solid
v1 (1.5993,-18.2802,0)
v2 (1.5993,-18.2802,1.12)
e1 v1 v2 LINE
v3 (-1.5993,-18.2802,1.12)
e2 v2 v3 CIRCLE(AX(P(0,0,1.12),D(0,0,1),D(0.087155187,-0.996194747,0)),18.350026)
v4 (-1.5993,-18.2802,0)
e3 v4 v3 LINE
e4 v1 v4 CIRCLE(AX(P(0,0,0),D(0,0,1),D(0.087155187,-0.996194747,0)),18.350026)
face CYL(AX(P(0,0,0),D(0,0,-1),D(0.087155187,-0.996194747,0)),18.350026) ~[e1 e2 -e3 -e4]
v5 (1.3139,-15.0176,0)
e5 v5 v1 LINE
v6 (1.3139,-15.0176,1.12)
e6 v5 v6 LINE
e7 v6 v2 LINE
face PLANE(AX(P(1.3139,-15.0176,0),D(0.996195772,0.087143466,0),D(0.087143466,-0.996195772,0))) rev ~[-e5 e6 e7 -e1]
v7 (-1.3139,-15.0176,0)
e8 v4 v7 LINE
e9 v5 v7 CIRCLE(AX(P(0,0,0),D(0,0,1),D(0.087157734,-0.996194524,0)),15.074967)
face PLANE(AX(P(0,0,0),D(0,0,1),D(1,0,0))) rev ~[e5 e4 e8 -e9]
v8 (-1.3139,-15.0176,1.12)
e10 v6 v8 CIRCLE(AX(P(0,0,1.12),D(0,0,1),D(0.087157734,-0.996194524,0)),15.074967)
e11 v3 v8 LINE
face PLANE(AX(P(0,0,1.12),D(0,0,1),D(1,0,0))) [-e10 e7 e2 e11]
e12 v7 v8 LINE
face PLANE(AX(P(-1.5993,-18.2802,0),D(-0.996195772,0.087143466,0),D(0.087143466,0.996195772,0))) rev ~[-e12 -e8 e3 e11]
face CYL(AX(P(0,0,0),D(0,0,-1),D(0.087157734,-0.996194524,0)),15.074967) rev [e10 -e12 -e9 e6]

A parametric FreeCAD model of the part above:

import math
import FreeCAD as App
import Part
import Sketcher
Q = App.Units.Quantity

doc = App.newDocument("Part")
params = doc.addObject("Spreadsheet::Sheet", "Params")
for row, (alias, value) in enumerate([
    ("sketch1_radius", "18.35 mm"),
    ("pad1_length", "1.12 mm"),
], start=1):
    params.set(f"A{row}", alias)
    params.set(f"B{row}", "=" + value)
    params.setAlias(f"B{row}", alias)

body = doc.addObject("PartDesign::Body", "Body")

# Sketch on XY plane
sketch1 = doc.addObject("Sketcher::SketchObject", "Sketch")
body.addObject(sketch1)
sketch1.AttachmentSupport = (doc.XY_Plane, [""])
sketch1.MapMode = "FlatFace"
sketch1.addGeometry(Part.LineSegment(App.Vector(1.3, -15, 0), App.Vector(1.6, -18.3, 0)), False)
sketch1.addGeometry(Part.ArcOfCircle(Part.Circle(App.Vector(0, 0, 0), App.Vector(0, 0, 1), 18.4), math.radians(-85), math.radians(265)), False)
sketch1.addGeometry(Part.LineSegment(App.Vector(-1.6, -18.3, 0), App.Vector(-1.3, -15, 0)), False)
sketch1.addGeometry(Part.ArcOfCircle(Part.Circle(App.Vector(0, 0, 0), App.Vector(0, 0, 1), 15.1), math.radians(-85), math.radians(265)), False)
sketch1.addConstraint(Sketcher.Constraint("Coincident", 0, 2, 1, 1))
sketch1.addConstraint(Sketcher.Constraint("Coincident", 1, 2, 2, 1))
sketch1.addConstraint(Sketcher.Constraint("Coincident", 2, 2, 3, 2))
sketch1.addConstraint(Sketcher.Constraint("Coincident", 3, 1, 0, 1))
sketch1.addConstraint(Sketcher.Constraint("Coincident", 1, 3, -1, 1))
sketch1.addConstraint(Sketcher.Constraint("Coincident", 3, 3, -1, 1))
sketch1.addConstraint(Sketcher.Constraint("Horizontal", 0, 2, 1, 2))
sketch1.addConstraint(Sketcher.Constraint("Horizontal", 2, 2, 3, 1))
sketch1.addConstraint(Sketcher.Constraint("Angle", 0, Q("-85.0007 deg")))
sketch1.addConstraint(Sketcher.Constraint("Radius", 1, 18.35))
sketch1.addConstraint(Sketcher.Constraint("Radius", 3, 15.075))
sketch1.addConstraint(Sketcher.Constraint("DistanceX", 2, 2, -1, 1, 1.314))
sketch1.setExpression("Constraints[9]", "Params.sketch1_radius")
pad1 = doc.addObject("PartDesign::Pad", "Pad")
body.addObject(pad1)
pad1.Profile = sketch1
pad1.setExpression("Length", "Params.pad1_length")

doc.recompute()
